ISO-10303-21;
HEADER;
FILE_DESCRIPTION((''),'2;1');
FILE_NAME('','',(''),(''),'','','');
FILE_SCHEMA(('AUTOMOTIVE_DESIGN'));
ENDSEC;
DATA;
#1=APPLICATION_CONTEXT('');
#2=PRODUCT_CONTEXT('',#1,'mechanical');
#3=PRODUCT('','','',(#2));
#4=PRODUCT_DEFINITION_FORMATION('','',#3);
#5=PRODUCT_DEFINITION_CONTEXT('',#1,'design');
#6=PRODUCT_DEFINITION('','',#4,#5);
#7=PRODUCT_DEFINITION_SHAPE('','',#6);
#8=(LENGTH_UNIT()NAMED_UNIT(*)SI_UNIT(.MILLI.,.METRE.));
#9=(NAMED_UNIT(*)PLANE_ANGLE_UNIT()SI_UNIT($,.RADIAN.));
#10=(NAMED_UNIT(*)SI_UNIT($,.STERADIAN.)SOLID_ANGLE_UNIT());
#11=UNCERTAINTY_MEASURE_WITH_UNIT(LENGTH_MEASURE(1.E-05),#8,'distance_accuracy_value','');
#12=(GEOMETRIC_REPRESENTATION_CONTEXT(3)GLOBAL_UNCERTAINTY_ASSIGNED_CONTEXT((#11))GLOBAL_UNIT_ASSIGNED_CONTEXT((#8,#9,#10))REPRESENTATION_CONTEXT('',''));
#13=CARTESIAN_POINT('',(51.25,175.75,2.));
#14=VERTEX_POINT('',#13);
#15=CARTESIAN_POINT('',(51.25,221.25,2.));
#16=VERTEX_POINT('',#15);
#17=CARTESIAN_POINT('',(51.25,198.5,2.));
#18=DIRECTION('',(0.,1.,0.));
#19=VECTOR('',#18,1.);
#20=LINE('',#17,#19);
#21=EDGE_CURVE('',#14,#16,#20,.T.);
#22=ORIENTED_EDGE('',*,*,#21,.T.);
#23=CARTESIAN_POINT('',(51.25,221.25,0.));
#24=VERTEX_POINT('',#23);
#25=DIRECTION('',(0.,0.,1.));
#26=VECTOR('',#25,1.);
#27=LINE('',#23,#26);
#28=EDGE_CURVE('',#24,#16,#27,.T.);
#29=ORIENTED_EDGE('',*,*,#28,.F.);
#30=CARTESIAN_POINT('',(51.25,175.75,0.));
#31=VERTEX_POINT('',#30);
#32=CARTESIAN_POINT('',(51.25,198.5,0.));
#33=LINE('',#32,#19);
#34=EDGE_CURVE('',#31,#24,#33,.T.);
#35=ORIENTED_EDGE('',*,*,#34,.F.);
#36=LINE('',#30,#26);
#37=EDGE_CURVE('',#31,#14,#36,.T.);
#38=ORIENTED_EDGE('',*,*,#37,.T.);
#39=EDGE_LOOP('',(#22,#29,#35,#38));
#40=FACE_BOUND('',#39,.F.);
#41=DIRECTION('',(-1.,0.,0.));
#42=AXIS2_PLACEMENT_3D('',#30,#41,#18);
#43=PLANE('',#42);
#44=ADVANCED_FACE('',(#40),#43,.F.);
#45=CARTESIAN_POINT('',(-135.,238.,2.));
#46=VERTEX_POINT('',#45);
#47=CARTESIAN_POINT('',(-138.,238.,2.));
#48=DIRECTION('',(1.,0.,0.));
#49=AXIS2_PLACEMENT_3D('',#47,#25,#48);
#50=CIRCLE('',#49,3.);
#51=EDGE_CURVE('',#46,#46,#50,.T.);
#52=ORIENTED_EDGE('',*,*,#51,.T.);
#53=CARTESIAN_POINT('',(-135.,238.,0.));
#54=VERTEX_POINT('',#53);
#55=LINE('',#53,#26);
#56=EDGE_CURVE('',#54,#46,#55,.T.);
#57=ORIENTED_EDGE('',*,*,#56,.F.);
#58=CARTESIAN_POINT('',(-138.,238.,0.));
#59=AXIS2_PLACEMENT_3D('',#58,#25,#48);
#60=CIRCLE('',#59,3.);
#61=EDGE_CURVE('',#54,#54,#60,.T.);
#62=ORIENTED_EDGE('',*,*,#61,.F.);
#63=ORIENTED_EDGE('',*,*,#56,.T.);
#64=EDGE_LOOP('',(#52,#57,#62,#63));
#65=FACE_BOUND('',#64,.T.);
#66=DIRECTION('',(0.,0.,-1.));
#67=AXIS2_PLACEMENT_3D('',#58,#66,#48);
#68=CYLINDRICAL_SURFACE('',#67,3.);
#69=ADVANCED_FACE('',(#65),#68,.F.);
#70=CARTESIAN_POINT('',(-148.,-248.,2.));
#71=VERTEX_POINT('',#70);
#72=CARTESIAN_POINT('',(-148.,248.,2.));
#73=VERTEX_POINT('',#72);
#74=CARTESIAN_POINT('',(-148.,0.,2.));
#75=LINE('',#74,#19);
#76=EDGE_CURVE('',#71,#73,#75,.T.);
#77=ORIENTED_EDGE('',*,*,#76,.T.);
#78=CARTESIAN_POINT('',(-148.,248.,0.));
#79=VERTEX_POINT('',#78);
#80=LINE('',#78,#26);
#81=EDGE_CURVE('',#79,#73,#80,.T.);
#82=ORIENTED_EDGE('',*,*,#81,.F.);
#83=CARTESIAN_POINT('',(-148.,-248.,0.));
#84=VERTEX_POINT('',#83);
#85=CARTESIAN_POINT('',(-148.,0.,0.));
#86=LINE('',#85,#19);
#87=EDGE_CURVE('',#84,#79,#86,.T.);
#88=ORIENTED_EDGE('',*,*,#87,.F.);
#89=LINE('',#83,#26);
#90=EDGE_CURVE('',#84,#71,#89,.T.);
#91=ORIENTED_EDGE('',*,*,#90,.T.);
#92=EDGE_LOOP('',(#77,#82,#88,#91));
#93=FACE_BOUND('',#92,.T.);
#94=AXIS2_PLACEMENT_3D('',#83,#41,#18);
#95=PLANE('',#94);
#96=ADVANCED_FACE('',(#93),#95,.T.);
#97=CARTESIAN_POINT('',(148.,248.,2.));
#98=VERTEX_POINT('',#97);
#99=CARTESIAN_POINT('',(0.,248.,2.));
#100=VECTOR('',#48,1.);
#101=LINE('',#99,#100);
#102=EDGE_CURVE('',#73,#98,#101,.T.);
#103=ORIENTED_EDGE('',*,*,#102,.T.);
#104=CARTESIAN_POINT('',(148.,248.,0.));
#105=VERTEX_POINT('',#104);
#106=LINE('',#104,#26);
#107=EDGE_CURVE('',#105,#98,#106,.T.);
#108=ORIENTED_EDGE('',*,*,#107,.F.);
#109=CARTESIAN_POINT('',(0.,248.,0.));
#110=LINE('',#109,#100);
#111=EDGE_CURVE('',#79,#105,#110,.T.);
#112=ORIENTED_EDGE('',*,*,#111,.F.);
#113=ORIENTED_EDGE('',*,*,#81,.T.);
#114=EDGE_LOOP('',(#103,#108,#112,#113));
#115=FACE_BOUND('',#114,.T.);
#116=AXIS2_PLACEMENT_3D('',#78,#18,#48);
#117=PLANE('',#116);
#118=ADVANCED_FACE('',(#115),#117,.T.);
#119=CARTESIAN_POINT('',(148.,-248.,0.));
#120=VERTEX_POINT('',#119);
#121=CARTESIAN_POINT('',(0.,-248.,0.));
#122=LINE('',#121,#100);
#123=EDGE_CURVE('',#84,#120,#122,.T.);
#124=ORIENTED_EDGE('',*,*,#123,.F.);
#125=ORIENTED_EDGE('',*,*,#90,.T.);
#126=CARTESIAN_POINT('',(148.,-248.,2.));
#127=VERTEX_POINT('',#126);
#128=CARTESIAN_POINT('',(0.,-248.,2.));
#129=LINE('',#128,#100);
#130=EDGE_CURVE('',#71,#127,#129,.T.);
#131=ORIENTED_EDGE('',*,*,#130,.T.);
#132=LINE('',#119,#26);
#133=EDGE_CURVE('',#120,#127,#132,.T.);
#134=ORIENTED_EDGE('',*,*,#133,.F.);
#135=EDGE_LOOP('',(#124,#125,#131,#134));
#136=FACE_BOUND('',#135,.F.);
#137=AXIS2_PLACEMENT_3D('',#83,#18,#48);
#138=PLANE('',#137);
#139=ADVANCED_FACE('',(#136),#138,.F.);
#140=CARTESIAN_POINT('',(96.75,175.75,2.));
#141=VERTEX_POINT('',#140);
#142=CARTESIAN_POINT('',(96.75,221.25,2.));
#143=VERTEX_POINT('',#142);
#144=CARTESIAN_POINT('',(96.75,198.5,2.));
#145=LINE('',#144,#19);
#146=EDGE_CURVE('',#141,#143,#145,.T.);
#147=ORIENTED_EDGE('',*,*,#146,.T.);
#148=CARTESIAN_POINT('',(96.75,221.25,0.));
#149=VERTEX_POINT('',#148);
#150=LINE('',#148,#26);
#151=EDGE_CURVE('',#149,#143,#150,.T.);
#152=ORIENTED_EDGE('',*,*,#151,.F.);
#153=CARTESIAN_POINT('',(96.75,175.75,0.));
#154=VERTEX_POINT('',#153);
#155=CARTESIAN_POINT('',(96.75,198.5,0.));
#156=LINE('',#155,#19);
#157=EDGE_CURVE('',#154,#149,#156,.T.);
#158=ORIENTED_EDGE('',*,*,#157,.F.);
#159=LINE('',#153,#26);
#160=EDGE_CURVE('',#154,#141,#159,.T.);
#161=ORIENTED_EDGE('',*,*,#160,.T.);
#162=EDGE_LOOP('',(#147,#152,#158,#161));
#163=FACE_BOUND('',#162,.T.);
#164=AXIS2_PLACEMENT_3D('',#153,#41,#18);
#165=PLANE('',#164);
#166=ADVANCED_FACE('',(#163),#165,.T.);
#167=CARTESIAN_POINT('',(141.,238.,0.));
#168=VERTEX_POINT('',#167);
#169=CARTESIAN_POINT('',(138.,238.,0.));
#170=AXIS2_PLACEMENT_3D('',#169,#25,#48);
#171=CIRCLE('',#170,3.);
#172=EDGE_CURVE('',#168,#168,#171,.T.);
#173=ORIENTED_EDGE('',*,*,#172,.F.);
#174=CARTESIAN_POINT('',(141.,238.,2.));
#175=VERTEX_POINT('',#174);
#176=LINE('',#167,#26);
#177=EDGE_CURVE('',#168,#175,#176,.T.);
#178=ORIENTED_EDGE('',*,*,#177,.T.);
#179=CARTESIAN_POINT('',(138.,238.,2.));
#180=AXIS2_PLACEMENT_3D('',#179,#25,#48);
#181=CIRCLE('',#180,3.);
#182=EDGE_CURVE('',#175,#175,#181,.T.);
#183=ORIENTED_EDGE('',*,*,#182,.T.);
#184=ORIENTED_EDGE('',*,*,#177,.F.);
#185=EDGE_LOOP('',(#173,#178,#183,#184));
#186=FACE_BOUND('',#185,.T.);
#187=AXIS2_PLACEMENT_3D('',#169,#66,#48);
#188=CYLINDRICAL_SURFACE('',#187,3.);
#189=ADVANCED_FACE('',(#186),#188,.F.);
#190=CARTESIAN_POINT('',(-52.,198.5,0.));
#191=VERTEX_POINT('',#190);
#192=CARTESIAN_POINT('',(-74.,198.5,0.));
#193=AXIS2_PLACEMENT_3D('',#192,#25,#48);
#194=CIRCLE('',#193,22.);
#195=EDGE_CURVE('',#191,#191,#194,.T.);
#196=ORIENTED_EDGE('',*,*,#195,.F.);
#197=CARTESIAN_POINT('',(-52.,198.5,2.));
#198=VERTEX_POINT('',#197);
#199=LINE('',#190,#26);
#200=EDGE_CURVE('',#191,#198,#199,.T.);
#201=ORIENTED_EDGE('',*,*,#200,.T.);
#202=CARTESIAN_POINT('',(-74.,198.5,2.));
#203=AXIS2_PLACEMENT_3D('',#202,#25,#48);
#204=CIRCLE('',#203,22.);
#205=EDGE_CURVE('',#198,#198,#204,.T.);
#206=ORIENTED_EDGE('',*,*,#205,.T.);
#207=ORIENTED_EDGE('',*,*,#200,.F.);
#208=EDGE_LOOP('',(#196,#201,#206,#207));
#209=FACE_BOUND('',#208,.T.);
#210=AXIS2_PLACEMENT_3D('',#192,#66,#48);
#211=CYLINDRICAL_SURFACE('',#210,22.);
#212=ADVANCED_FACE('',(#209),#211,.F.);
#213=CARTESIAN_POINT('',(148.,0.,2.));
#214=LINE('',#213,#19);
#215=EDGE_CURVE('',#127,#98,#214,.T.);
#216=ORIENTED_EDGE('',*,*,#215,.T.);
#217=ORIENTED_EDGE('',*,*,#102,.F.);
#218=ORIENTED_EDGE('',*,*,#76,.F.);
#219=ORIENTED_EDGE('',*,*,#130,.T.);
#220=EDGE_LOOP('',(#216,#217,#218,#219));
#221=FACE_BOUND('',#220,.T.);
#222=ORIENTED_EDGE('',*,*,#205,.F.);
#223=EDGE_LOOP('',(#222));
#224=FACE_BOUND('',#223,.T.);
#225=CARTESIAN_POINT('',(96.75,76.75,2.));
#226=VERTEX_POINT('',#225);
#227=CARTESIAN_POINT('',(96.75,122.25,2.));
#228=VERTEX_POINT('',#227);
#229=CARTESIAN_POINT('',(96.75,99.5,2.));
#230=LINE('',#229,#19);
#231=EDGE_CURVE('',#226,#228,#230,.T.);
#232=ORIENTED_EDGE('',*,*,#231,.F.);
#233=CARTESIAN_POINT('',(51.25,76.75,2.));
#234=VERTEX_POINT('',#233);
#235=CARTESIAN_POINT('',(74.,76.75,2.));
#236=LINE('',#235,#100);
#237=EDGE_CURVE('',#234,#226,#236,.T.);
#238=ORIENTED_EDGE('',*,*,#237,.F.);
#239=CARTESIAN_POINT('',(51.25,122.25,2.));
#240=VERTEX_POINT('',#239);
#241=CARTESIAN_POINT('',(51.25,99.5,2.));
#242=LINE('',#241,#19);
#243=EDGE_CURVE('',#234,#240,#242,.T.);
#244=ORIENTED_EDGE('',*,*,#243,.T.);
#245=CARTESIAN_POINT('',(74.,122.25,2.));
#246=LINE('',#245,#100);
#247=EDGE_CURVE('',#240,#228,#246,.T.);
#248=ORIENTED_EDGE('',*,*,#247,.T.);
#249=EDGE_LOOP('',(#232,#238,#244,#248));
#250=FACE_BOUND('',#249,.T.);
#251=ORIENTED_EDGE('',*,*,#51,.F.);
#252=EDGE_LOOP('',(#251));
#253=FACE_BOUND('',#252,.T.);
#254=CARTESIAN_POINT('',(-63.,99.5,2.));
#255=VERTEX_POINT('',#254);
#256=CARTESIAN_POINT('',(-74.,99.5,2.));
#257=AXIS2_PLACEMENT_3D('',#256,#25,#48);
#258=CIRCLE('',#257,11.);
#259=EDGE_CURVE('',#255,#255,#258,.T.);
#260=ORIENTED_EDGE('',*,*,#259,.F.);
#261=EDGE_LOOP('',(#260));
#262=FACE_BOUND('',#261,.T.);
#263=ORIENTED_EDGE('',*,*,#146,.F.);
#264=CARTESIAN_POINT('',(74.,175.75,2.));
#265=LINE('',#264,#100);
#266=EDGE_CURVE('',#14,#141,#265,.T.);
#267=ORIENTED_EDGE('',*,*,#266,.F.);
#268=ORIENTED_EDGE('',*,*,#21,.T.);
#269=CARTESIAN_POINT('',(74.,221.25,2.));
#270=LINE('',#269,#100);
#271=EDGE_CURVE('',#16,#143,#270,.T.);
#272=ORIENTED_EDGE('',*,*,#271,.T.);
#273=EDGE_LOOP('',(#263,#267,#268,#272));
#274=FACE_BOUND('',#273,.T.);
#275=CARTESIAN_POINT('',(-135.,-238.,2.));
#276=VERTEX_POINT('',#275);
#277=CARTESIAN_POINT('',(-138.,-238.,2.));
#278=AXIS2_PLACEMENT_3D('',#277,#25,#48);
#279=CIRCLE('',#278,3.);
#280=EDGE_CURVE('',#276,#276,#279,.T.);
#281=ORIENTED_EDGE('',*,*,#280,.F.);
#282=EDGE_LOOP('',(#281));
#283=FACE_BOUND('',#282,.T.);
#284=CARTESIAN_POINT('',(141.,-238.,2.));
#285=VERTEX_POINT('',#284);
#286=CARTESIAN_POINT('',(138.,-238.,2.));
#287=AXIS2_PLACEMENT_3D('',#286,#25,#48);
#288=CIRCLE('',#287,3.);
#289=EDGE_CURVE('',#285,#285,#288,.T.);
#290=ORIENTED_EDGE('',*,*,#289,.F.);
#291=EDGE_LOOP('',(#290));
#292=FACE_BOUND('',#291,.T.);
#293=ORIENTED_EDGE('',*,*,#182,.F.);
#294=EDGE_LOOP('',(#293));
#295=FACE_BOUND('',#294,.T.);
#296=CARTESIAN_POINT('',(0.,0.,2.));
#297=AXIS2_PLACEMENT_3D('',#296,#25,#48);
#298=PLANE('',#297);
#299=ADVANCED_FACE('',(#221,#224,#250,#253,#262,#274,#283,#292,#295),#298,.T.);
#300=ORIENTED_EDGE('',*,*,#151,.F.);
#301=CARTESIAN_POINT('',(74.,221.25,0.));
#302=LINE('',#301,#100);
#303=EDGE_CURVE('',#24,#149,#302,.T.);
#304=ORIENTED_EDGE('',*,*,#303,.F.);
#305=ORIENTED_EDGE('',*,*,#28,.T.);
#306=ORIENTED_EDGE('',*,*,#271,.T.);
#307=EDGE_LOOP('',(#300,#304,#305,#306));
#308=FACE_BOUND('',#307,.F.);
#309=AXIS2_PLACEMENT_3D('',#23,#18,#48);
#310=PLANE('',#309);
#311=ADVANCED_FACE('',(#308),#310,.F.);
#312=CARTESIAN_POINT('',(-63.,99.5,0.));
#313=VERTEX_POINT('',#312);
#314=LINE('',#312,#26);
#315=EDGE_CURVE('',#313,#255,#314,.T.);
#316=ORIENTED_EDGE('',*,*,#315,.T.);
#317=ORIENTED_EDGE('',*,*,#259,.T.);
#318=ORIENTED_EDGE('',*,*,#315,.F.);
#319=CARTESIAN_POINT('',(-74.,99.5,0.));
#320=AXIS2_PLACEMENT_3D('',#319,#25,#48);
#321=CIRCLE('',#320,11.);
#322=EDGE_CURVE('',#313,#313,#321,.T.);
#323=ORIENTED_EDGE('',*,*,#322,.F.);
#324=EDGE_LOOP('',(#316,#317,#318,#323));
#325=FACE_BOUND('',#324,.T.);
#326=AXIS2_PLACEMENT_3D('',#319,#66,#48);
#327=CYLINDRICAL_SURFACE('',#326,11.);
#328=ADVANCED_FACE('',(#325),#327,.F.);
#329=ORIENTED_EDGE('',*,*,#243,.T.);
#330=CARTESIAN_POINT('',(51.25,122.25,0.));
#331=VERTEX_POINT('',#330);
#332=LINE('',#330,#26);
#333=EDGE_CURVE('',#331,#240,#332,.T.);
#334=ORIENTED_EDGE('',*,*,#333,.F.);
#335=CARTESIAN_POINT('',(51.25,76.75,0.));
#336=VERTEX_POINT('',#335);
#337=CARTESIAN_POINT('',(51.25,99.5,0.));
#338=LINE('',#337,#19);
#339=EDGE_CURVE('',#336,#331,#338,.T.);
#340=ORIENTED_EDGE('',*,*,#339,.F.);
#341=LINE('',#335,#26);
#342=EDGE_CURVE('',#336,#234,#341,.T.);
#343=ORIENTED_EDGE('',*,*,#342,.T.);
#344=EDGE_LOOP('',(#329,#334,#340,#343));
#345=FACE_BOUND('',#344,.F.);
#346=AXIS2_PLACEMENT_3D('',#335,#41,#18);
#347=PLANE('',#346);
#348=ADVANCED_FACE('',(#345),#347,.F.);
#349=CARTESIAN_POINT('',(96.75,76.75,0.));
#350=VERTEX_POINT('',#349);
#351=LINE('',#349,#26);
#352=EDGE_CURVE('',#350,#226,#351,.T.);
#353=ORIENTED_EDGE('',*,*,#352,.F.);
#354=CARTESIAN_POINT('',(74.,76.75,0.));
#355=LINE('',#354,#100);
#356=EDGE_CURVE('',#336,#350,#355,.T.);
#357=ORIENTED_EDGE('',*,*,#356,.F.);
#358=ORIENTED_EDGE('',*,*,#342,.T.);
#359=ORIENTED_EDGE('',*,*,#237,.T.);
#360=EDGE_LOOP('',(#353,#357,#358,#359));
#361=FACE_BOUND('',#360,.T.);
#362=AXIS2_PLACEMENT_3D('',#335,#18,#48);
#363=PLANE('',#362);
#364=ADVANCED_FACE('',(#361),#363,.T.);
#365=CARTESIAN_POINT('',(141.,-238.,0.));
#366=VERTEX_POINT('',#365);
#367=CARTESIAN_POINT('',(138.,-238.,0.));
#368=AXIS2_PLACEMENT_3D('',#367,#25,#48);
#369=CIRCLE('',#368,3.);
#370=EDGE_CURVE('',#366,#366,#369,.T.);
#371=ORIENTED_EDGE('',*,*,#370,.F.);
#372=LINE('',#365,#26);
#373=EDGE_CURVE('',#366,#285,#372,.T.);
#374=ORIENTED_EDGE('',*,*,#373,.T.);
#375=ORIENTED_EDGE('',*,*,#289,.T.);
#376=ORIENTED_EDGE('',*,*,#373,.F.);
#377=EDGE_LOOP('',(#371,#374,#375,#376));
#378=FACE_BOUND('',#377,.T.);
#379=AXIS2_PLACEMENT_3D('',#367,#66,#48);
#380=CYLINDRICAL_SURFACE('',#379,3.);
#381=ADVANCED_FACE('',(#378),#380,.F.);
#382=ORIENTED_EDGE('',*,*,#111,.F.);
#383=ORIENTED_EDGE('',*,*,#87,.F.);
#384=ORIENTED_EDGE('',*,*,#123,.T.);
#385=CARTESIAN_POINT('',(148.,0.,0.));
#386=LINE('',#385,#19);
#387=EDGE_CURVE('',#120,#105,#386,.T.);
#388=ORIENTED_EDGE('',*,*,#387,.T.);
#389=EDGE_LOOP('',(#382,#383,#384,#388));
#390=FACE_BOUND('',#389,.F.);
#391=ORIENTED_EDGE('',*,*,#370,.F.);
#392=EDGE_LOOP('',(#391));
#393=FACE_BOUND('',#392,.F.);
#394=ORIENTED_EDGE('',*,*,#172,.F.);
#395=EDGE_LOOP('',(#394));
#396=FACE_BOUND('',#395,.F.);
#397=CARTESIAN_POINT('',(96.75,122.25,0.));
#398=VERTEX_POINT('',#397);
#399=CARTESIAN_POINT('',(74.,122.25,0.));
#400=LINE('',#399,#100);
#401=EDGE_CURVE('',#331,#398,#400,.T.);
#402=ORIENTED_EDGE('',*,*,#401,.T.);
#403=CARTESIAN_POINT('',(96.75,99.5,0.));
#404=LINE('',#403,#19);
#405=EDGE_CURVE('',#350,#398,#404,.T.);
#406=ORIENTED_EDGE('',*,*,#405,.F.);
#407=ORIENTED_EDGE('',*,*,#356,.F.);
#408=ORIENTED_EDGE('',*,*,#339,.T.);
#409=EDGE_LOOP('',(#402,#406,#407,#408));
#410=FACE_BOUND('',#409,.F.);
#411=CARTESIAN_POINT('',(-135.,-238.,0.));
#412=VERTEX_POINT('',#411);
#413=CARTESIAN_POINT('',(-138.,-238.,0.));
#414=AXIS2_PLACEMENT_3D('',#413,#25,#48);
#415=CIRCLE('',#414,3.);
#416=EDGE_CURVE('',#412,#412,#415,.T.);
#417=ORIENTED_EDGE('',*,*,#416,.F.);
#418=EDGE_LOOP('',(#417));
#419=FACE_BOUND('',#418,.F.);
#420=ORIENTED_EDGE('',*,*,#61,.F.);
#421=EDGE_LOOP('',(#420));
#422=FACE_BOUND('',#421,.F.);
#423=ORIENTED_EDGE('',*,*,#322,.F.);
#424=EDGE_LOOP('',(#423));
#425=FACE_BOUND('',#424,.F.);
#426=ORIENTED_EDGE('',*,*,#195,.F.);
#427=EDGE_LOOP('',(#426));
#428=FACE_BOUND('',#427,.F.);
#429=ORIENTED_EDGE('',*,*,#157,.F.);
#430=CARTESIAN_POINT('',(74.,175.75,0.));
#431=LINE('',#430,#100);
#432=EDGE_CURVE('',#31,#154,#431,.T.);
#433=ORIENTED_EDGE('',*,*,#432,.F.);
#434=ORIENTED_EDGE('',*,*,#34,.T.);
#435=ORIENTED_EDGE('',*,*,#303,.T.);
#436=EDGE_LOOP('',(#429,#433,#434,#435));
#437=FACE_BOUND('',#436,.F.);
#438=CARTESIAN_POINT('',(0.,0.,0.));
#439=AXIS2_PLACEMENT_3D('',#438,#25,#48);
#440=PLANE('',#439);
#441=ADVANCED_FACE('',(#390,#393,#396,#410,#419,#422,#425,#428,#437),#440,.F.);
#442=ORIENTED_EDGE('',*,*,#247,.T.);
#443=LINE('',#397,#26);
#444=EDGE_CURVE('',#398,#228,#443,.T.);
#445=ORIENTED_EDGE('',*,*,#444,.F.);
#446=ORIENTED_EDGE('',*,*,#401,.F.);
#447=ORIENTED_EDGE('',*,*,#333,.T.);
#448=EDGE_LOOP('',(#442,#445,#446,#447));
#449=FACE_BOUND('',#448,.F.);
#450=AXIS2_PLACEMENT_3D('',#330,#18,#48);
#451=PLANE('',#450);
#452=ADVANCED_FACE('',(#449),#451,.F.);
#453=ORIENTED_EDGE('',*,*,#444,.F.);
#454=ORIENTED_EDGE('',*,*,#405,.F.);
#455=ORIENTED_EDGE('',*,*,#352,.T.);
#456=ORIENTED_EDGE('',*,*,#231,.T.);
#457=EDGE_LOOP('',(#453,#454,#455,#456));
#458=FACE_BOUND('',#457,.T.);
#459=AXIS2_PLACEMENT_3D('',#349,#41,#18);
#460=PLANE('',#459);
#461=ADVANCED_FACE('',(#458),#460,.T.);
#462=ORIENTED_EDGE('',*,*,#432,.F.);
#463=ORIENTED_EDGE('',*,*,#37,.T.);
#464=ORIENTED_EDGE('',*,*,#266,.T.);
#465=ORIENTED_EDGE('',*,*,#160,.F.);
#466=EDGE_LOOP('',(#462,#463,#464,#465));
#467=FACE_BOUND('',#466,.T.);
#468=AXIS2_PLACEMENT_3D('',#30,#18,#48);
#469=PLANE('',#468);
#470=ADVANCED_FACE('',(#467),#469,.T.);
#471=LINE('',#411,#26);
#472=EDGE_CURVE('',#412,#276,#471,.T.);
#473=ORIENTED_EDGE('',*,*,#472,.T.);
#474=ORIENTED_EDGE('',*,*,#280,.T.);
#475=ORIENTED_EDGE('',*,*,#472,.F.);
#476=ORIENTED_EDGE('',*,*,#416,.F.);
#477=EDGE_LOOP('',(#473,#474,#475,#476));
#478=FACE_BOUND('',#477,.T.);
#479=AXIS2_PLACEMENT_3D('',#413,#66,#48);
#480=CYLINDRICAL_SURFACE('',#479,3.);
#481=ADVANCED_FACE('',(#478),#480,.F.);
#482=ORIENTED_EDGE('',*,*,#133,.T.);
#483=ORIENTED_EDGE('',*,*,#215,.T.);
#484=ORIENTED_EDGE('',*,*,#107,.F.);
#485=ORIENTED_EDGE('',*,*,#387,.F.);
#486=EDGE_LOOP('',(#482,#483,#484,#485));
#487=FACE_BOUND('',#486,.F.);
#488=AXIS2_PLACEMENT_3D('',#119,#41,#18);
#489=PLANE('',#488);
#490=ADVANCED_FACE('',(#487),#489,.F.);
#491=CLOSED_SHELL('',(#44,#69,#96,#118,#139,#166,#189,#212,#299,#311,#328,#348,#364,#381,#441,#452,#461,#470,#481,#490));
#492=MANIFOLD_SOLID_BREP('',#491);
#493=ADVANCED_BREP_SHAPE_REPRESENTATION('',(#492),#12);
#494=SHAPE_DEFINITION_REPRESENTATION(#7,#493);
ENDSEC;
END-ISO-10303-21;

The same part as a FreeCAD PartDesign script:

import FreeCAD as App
import Part
import Sketcher
from FreeCAD import Vector
Q = App.Units.Quantity


def add_polygon(sketch, points):
    """Adds a closed chain of lines whose ends are joined by coincident constraints."""
    first, n = sketch.GeometryCount, len(points)
    for a, b in zip(points, points[1:] + points[:1]):
        sketch.addGeometry(Part.LineSegment(App.Vector(*a, 0), App.Vector(*b, 0)), False)
    for i in range(n):
        sketch.addConstraint(Sketcher.Constraint("Coincident", first + i, 2, first + (i + 1) % n, 1))

doc = App.newDocument("Part")
body = doc.addObject("PartDesign::Body", "Body")

sketch1 = body.newObject("Sketcher::SketchObject", "Sketch")
sketch1.AttachmentSupport = (doc.getObject("XY_Plane"), [""])
sketch1.MapMode = "FlatFace"
add_polygon(sketch1, [(-148, 248), (-148, -248), (148, -248), (148, 248)])
sketch1.addGeometry(Part.Circle(Vector(-138, -238, 0), Vector(0, 0, 1), 3), False)
sketch1.addGeometry(Part.Circle(Vector(138, -238, 0), Vector(0, 0, 1), 3), False)
sketch1.addGeometry(Part.Circle(Vector(-74, 99.5, 0), Vector(0, 0, 1), 11), False)
sketch1.addGeometry(Part.Circle(Vector(-138, 238, 0), Vector(0, 0, 1), 3), False)
sketch1.addGeometry(Part.Circle(Vector(-74, 198.5, 0), Vector(0, 0, 1), 22), False)
add_polygon(sketch1, [(96.8, 76.8), (51.2, 76.8), (51.2, 122.2), (96.8, 122.2)])
add_polygon(sketch1, [(96.8, 175.8), (51.2, 175.8), (51.2, 221.2), (96.8, 221.2)])
sketch1.addGeometry(Part.Circle(Vector(138, 238, 0), Vector(0, 0, 1), 3), False)
sketch1.addConstraint(Sketcher.Constraint("Vertical", 0))
sketch1.addConstraint(Sketcher.Constraint("Horizontal", 1))
sketch1.addConstraint(Sketcher.Constraint("Vertical", 2))
sketch1.addConstraint(Sketcher.Constraint("Horizontal", 3))
sketch1.addConstraint(Sketcher.Constraint("Horizontal", 9))
sketch1.addConstraint(Sketcher.Constraint("Vertical", 10))
sketch1.addConstraint(Sketcher.Constraint("Horizontal", 11))
sketch1.addConstraint(Sketcher.Constraint("Vertical", 12))
sketch1.addConstraint(Sketcher.Constraint("Horizontal", 13))
sketch1.addConstraint(Sketcher.Constraint("Vertical", 14))
sketch1.addConstraint(Sketcher.Constraint("Horizontal", 15))
sketch1.addConstraint(Sketcher.Constraint("Vertical", 16))
sketch1.addConstraint(Sketcher.Constraint("Equal", 4, 5))
sketch1.addConstraint(Sketcher.Constraint("Equal", 5, 7))
sketch1.addConstraint(Sketcher.Constraint("Equal", 7, 17))
sketch1.addConstraint(Sketcher.Constraint("Symmetric", 5, 3, 7, 3, -1, 1))
sketch1.addConstraint(Sketcher.Constraint("Symmetric", 4, 3, 17, 3, -1, 1))
sketch1.addConstraint(Sketcher.Constraint("Symmetric", 0, 2, 2, 2, -1, 1))
sketch1.addConstraint(Sketcher.Constraint("Symmetric", 4, 3, 5, 3, -2))
sketch1.addConstraint(Sketcher.Constraint("Vertical", 6, 3, 8, 3))
sketch1.addConstraint(Sketcher.Constraint("Vertical", 10, 2, 13, 2))
sketch1.addConstraint(Sketcher.Constraint("Vertical", 12, 2, 15, 2))
sketch1.addConstraint(Sketcher.Constraint("Equal", 15, 10))
sketch1.addConstraint(Sketcher.Constraint("Equal", 12, 14))
sketch1.addConstraint(Sketcher.Constraint("Diameter", 4, Q("6 mm")))
sketch1.addConstraint(Sketcher.Constraint("Diameter", 6, Q("22 mm")))
sketch1.addConstraint(Sketcher.Constraint("Diameter", 8, Q("44 mm")))
sketch1.addConstraint(Sketcher.Constraint("DistanceX", 1, 1, 1, 2, Q("296 mm")))
sketch1.addConstraint(Sketcher.Constraint("DistanceY", 0, 2, 0, 1, Q("496 mm")))
sketch1.addConstraint(Sketcher.Constraint("DistanceX", 9, 2, 9, 1, Q("45.5 mm")))
sketch1.addConstraint(Sketcher.Constraint("DistanceX", 4, 3, -1, 1, Q("138 mm")))
sketch1.addConstraint(Sketcher.Constraint("DistanceY", 4, 3, -1, 1, Q("238 mm")))
sketch1.addConstraint(Sketcher.Constraint("DistanceX", 6, 3, -1, 1, Q("74 mm")))
sketch1.addConstraint(Sketcher.Constraint("DistanceY", 6, 3, 8, 3, Q("99 mm")))
sketch1.addConstraint(Sketcher.Constraint("DistanceY", 9, 2, 13, 2, Q("99 mm")))
sketch1.addConstraint(Sketcher.Constraint("DistanceY", -1, 1, 6, 3, Q("99.5 mm")))
sketch1.addConstraint(Sketcher.Constraint("DistanceX", -1, 1, 9, 2, Q("51.25 mm")))
sketch1.addConstraint(Sketcher.Constraint("DistanceY", -1, 1, 9, 2, Q("76.75 mm")))
pad1 = body.newObject("PartDesign::Pad", "Pad")
pad1.Profile = sketch1
pad1.Length = 2

doc.recompute()
